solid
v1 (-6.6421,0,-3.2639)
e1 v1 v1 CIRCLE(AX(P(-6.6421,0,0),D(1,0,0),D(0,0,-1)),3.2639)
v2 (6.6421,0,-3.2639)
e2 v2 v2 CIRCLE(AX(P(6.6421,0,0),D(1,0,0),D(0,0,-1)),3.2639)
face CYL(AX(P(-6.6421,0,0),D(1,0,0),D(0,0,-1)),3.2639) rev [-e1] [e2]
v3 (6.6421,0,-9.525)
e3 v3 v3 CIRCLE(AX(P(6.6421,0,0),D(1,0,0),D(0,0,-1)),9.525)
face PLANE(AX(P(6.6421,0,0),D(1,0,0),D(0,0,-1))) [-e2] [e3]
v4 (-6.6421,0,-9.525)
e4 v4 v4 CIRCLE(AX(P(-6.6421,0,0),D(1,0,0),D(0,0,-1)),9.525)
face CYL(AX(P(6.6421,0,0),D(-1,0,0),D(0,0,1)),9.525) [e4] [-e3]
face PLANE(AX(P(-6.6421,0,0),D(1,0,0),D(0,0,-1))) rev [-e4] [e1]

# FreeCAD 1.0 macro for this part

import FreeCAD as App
import Part
import Sketcher

V = App.Vector
Q = App.Units.Quantity

doc = App.newDocument("Part")
body = doc.addObject("PartDesign::Body", "Body")

sketch1 = body.newObject("Sketcher::SketchObject", "Sketch")
sketch1.AttachmentSupport = (doc.getObject("YZ_Plane"), [""])
sketch1.MapMode = "FlatFace"
sketch1.addGeometry(Part.Circle(V(0, 0, 0), V(0, 0, 1), 10), False)
sketch1.addConstraint(Sketcher.Constraint("Coincident", 0, 3, -1, 1))
sketch1.addConstraint(Sketcher.Constraint("Diameter", 0, Q("0.75 in")))
pad1 = body.newObject("PartDesign::Pad", "Pad")
pad1.Profile = sketch1
pad1.Length = Q("0.523 in")
pad1.Midplane = True

sketch2 = body.newObject("Sketcher::SketchObject", "Sketch001")
sketch2.AttachmentSupport = (doc.getObject("YZ_Plane"), [""])
sketch2.MapMode = "FlatFace"
sketch2.AttachmentOffset = App.Placement(V(0, 0, 0.2615 * 25.4), App.Rotation())
sketch2.addGeometry(Part.Circle(V(0, 0, 0), V(0, 0, 1), 3.3), False)
sketch2.addConstraint(Sketcher.Constraint("Coincident", 0, 3, -1, 1))
sketch2.addConstraint(Sketcher.Constraint("Diameter", 0, Q("0.257 in")))
pocket1 = body.newObject("PartDesign::Pocket", "Pocket")
pocket1.Profile = sketch2
pocket1.Type = "ThroughAll"

doc.recompute()
